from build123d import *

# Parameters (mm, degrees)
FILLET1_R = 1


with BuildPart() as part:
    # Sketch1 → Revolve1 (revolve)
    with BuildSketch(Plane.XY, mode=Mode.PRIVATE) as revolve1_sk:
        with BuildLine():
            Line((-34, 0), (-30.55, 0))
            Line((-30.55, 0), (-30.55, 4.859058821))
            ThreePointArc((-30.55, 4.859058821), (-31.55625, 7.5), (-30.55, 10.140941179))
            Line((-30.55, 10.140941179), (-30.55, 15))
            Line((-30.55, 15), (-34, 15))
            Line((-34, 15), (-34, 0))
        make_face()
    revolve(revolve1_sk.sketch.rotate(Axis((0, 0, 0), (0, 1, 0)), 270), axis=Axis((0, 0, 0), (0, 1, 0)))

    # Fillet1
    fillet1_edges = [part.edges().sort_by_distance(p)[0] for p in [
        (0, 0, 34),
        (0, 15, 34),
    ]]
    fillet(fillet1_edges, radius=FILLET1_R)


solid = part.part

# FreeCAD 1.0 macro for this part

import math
import FreeCAD as App
import Part
import Sketcher
Q = App.Units.Quantity


def edges_at(feature, points):
    """Names of the edges that pass closest to the given points."""
    edges = feature.Shape.Edges
    near = lambda p: min(range(len(edges)), key=lambda i: edges[i].distToShape(Part.Vertex(*p))[0])
    return sorted({f"Edge{near(p) + 1}" for p in points})

doc = App.newDocument("Part")
body = doc.addObject("PartDesign::Body", "Body")

sketch1 = doc.addObject("Sketcher::SketchObject", "Sketch")
body.addObject(sketch1)
sketch1.AttachmentSupport = (doc.XY_Plane, [""])
sketch1.MapMode = "FlatFace"
sketch1.addGeometry(Part.LineSegment(App.Vector(-34, 0, 0), App.Vector(-30.6, 0, 0)), False)
sketch1.addGeometry(Part.LineSegment(App.Vector(-30.6, 0, 0), App.Vector(-30.6, 4.9, 0)), False)
sketch1.addGeometry(Part.ArcOfCircle(Part.Circle(App.Vector(-27.6, 7.5, 0), App.Vector(0, 0, 1), 4), math.radians(138), math.radians(222)), False)
sketch1.addGeometry(Part.LineSegment(App.Vector(-30.6, 10.1, 0), App.Vector(-30.6, 15, 0)), False)
sketch1.addGeometry(Part.LineSegment(App.Vector(-30.6, 15, 0), App.Vector(-34, 15, 0)), False)
sketch1.addGeometry(Part.LineSegment(App.Vector(-34, 15, 0), App.Vector(-34, 0, 0)), False)
sketch1.addConstraint(Sketcher.Constraint("Coincident", 0, 2, 1, 1))
sketch1.addConstraint(Sketcher.Constraint("Coincident", 1, 2, 2, 2))
sketch1.addConstraint(Sketcher.Constraint("Coincident", 2, 1, 3, 1))
sketch1.addConstraint(Sketcher.Constraint("Coincident", 3, 2, 4, 1))
sketch1.addConstraint(Sketcher.Constraint("Coincident", 4, 2, 5, 1))
sketch1.addConstraint(Sketcher.Constraint("Coincident", 5, 2, 0, 1))
sketch1.addConstraint(Sketcher.Constraint("Horizontal", 0))
sketch1.addConstraint(Sketcher.Constraint("Vertical", 1))
sketch1.addConstraint(Sketcher.Constraint("Vertical", 3))
sketch1.addConstraint(Sketcher.Constraint("Horizontal", 4))
sketch1.addConstraint(Sketcher.Constraint("Vertical", 5))
sketch1.addConstraint(Sketcher.Constraint("PointOnObject", 0, 2, -1))
sketch1.addConstraint(Sketcher.Constraint("Vertical", 1, 2, 2, 1))
sketch1.addConstraint(Sketcher.Constraint("Equal", 1, 3))
sketch1.addConstraint(Sketcher.Constraint("DistanceY", 5, 2, 5, 1, Q("15 mm")))
sketch1.addConstraint(Sketcher.Constraint("DistanceX", 4, 2, -1, 1, Q("34 mm")))
sketch1.addConstraint(Sketcher.Constraint("DistanceX", 0, 1, 0, 2, Q("3.45 mm")))
sketch1.addConstraint(Sketcher.Constraint("Radius", 2, Q("3.96875 mm")))
sketch1.addConstraint(Sketcher.Constraint("DistanceY", 1, 1, 1, 2, Q("4.859059 mm")))
revolution = doc.addObject("PartDesign::Revolution", "Revolution")
body.addObject(revolution)
revolution.Profile = sketch1
revolution.ReferenceAxis = (sketch1, ["V_Axis"])
revolution.Angle = 360
doc.recompute()

fillet = doc.addObject("PartDesign::Fillet", "Fillet")
body.addObject(fillet)
fillet.Base = (revolution, edges_at(revolution, [(0, 0, 34), (0, 15, 34)]))
fillet.Radius = 1

doc.recompute()
